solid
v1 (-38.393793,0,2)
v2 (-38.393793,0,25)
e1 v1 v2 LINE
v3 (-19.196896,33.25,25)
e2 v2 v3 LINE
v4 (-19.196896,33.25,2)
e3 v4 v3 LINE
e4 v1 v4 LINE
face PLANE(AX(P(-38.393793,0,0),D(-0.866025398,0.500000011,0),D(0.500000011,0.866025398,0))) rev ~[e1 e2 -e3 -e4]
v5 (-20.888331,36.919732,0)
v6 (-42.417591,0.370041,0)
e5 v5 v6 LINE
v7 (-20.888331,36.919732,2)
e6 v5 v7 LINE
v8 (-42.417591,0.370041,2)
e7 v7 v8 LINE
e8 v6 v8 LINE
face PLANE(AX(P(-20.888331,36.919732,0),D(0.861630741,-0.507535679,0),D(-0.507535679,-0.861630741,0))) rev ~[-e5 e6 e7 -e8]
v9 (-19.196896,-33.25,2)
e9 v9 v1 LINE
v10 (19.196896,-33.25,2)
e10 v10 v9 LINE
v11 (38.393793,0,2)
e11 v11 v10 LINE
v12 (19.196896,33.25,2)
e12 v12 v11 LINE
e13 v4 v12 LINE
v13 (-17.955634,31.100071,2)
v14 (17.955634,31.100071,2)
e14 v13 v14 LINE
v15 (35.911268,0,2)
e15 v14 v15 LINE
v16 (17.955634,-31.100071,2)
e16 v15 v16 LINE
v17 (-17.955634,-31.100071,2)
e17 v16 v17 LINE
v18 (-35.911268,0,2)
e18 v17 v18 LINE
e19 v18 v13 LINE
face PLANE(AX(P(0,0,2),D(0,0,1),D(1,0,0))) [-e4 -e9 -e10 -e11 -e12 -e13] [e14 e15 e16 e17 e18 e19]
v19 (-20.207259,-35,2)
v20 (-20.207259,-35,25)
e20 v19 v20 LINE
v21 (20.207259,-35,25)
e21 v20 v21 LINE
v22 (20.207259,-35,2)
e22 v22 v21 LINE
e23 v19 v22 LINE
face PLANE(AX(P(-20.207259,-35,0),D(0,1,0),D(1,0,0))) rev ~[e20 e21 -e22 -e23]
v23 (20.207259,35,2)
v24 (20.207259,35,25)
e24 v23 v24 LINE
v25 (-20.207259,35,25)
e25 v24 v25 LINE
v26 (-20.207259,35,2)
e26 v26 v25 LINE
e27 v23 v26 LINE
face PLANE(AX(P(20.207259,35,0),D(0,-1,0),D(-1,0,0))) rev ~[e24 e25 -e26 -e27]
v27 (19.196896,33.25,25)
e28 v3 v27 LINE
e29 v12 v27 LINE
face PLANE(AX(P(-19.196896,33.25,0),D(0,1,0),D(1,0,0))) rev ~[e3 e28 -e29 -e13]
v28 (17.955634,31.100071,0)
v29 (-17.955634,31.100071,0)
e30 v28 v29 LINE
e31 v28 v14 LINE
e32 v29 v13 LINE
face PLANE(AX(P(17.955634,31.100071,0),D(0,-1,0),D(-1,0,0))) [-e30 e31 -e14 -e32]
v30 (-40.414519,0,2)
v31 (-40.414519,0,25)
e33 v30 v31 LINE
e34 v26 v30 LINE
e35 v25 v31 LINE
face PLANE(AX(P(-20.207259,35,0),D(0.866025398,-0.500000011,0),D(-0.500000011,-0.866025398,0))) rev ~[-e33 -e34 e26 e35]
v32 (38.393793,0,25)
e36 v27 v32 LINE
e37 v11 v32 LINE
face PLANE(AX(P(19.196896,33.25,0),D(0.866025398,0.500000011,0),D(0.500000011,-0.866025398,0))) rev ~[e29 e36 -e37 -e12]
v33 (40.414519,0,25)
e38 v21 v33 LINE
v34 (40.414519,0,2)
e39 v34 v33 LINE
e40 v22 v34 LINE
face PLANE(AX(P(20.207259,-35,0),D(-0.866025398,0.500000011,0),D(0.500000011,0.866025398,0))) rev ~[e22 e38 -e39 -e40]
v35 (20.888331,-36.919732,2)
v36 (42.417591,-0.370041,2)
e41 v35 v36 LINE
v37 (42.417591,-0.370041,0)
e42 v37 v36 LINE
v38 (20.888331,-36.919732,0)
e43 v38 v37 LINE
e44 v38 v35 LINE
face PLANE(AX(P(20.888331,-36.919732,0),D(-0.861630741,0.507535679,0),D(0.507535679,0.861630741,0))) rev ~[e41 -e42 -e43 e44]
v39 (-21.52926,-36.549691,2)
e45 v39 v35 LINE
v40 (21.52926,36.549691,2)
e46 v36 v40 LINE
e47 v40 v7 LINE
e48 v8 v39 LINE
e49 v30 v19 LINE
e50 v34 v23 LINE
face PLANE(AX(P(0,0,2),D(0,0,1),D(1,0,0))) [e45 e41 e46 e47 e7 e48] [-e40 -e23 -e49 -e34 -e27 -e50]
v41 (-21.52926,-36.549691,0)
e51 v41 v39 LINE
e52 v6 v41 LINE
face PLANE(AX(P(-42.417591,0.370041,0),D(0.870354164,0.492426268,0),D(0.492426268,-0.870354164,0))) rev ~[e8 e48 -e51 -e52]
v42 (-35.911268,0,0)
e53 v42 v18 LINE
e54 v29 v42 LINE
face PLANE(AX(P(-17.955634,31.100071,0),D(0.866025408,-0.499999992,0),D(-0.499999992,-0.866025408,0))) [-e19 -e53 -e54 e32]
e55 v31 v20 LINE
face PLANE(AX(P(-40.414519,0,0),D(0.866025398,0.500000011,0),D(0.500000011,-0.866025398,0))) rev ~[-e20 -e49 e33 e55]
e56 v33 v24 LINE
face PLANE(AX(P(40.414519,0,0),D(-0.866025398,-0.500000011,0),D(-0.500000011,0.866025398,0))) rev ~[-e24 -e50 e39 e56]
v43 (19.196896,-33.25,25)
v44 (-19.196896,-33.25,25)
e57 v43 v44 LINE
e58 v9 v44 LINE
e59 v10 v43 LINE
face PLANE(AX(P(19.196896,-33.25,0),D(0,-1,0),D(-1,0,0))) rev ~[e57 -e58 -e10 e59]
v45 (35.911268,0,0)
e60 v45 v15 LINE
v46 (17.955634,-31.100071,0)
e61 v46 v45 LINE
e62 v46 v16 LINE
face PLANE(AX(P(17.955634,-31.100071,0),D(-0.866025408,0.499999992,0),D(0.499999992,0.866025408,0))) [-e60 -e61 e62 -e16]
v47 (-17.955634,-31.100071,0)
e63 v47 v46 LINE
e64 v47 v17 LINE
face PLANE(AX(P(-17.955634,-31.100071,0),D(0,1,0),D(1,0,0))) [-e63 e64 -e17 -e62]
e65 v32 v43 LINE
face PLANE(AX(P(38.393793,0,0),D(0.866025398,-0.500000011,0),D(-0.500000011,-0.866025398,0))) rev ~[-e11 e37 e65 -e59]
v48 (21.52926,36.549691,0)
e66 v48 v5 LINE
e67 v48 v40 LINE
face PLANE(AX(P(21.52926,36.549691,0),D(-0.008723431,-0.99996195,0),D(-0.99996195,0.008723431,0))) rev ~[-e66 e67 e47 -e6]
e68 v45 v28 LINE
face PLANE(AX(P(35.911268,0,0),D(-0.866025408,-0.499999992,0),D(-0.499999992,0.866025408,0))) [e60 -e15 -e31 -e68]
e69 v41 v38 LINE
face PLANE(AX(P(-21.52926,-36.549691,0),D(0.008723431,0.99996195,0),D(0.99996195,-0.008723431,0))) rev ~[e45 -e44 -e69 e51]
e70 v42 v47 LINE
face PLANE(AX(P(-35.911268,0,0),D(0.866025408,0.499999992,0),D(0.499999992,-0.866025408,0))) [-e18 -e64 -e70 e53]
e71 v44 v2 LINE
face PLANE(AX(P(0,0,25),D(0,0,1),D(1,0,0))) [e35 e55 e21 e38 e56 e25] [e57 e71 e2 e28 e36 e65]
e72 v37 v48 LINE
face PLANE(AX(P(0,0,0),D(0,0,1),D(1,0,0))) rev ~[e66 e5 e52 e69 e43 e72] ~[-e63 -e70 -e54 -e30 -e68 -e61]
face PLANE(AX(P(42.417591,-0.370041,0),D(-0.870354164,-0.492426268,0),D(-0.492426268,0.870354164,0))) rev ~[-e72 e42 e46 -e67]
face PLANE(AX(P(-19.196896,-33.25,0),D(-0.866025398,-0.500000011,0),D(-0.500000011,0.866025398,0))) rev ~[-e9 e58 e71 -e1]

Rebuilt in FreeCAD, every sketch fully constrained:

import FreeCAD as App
import Part
import Sketcher
Q = App.Units.Quantity


def add_polygon(sketch, points):
    """Adds a closed chain of lines whose ends are joined by coincident constraints."""
    first, n = sketch.GeometryCount, len(points)
    for a, b in zip(points, points[1:] + points[:1]):
        sketch.addGeometry(Part.LineSegment(App.Vector(*a, 0), App.Vector(*b, 0)), False)
    for i in range(n):
        sketch.addConstraint(Sketcher.Constraint("Coincident", first + i, 2, first + (i + 1) % n, 1))

doc = App.newDocument("Part")
body = doc.addObject("PartDesign::Body", "Body")

sketch1 = body.newObject("Sketcher::SketchObject", "Sketch")
sketch1.AttachmentSupport = (doc.getObject("XY_Plane"), [""])
sketch1.MapMode = "FlatFace"
add_polygon(sketch1, [(20, -35), (40, 0), (20, 35), (-20, 35), (-40, 0), (-20, -35)])
add_polygon(sketch1, [(-19, 33), (19, 33), (38, 0), (19, -33), (-19, -33), (-38, 0)])
sketch1.addConstraint(Sketcher.Constraint("Horizontal", 2))
sketch1.addConstraint(Sketcher.Constraint("Horizontal", 5))
sketch1.addConstraint(Sketcher.Constraint("Horizontal", 6))
sketch1.addConstraint(Sketcher.Constraint("Horizontal", 9))
sketch1.addConstraint(Sketcher.Constraint("Symmetric", 0, 2, 3, 2, -1, 1))
sketch1.addConstraint(Sketcher.Constraint("Symmetric", 1, 2, 4, 2, -1, 1))
sketch1.addConstraint(Sketcher.Constraint("Symmetric", 6, 2, 9, 2, -1, 1))
sketch1.addConstraint(Sketcher.Constraint("Symmetric", 7, 2, 10, 2, -1, 1))
sketch1.addConstraint(Sketcher.Constraint("PointOnObject", 0, 2, -1))
sketch1.addConstraint(Sketcher.Constraint("PointOnObject", 7, 2, -1))
sketch1.addConstraint(Sketcher.Constraint("Parallel", 0, 3))
sketch1.addConstraint(Sketcher.Constraint("Parallel", 4, 7))
sketch1.addConstraint(Sketcher.Constraint("Parallel", 3, 8))
sketch1.addConstraint(Sketcher.Constraint("Parallel", 8, 11))
sketch1.addConstraint(Sketcher.Constraint("Vertical", 2, 2, 4, 2))
sketch1.addConstraint(Sketcher.Constraint("Angle", 0, Q("59.999999 deg")))
sketch1.addConstraint(Sketcher.Constraint("DistanceY", -1, 1, 1, 2, 35.0))
sketch1.addConstraint(Sketcher.Constraint("DistanceY", 8, 2, 6, 2, 66.5))
sketch1.addConstraint(Sketcher.Constraint("DistanceX", 6, 1, 6, 2, 38.393792))
sketch1.addConstraint(Sketcher.Constraint("DistanceX", 2, 2, 2, 1, 40.414518))
pad1 = body.newObject("PartDesign::Pad", "Pad")
pad1.Profile = sketch1
pad1.Length = 25

sketch2 = body.newObject("Sketcher::SketchObject", "Sketch001")
sketch2.AttachmentSupport = (doc.getObject("XY_Plane"), [""])
sketch2.MapMode = "FlatFace"
add_polygon(sketch2, [(21, -37), (42, 0), (22, 37), (-21, 37), (-42, 0), (-22, -37)])
sketch2.addConstraint(Sketcher.Constraint("Symmetric", 0, 2, 3, 2, -1, 1))
sketch2.addConstraint(Sketcher.Constraint("Symmetric", 1, 2, 4, 2, -1, 1))
sketch2.addConstraint(Sketcher.Constraint("Symmetric", 2, 2, 5, 2, -1, 1))
sketch2.addConstraint(Sketcher.Constraint("Equal", 0, 1))
sketch2.addConstraint(Sketcher.Constraint("Equal", 1, 2))
sketch2.addConstraint(Sketcher.Constraint("DistanceX", -1, 1, 0, 2, 42.417591))
sketch2.addConstraint(Sketcher.Constraint("DistanceY", 0, 2, -1, 1, 0.370041))
sketch2.addConstraint(Sketcher.Constraint("DistanceX", -1, 1, 1, 2, 21.52926))
sketch2.addConstraint(Sketcher.Constraint("DistanceY", -1, 1, 1, 2, 36.549691))
pad2 = body.newObject("PartDesign::Pad", "Pad001")
pad2.Profile = sketch2
pad2.Length = 2

sketch3 = body.newObject("Sketcher::SketchObject", "Sketch002")
sketch3.AttachmentSupport = (doc.getObject("XY_Plane"), [""])
sketch3.MapMode = "FlatFace"
add_polygon(sketch3, [(18, -31), (36, 0), (18, 31), (-18, 31), (-36, 0), (-18, -31)])
sketch3.addConstraint(Sketcher.Constraint("Horizontal", 2))
sketch3.addConstraint(Sketcher.Constraint("Horizontal", 5))
sketch3.addConstraint(Sketcher.Constraint("Symmetric", 0, 2, 3, 2, -1, 1))
sketch3.addConstraint(Sketcher.Constraint("Symmetric", 1, 2, 4, 2, -1, 1))
sketch3.addConstraint(Sketcher.Constraint("PointOnObject", 0, 2, -1))
sketch3.addConstraint(Sketcher.Constraint("Parallel", 0, 3))
sketch3.addConstraint(Sketcher.Constraint("Vertical", 2, 2, 4, 2))
sketch3.addConstraint(Sketcher.Constraint("Angle", 0, Q("60.000001 deg")))
sketch3.addConstraint(Sketcher.Constraint("DistanceX", 2, 2, 0, 2, 53.866902))
sketch3.addConstraint(Sketcher.Constraint("Distance", 0, 35.911269))
pocket1 = body.newObject("PartDesign::Pocket", "Pocket")
pocket1.Profile = sketch3
pocket1.Length = 15.1
pocket1.Reversed = True

doc.recompute()
